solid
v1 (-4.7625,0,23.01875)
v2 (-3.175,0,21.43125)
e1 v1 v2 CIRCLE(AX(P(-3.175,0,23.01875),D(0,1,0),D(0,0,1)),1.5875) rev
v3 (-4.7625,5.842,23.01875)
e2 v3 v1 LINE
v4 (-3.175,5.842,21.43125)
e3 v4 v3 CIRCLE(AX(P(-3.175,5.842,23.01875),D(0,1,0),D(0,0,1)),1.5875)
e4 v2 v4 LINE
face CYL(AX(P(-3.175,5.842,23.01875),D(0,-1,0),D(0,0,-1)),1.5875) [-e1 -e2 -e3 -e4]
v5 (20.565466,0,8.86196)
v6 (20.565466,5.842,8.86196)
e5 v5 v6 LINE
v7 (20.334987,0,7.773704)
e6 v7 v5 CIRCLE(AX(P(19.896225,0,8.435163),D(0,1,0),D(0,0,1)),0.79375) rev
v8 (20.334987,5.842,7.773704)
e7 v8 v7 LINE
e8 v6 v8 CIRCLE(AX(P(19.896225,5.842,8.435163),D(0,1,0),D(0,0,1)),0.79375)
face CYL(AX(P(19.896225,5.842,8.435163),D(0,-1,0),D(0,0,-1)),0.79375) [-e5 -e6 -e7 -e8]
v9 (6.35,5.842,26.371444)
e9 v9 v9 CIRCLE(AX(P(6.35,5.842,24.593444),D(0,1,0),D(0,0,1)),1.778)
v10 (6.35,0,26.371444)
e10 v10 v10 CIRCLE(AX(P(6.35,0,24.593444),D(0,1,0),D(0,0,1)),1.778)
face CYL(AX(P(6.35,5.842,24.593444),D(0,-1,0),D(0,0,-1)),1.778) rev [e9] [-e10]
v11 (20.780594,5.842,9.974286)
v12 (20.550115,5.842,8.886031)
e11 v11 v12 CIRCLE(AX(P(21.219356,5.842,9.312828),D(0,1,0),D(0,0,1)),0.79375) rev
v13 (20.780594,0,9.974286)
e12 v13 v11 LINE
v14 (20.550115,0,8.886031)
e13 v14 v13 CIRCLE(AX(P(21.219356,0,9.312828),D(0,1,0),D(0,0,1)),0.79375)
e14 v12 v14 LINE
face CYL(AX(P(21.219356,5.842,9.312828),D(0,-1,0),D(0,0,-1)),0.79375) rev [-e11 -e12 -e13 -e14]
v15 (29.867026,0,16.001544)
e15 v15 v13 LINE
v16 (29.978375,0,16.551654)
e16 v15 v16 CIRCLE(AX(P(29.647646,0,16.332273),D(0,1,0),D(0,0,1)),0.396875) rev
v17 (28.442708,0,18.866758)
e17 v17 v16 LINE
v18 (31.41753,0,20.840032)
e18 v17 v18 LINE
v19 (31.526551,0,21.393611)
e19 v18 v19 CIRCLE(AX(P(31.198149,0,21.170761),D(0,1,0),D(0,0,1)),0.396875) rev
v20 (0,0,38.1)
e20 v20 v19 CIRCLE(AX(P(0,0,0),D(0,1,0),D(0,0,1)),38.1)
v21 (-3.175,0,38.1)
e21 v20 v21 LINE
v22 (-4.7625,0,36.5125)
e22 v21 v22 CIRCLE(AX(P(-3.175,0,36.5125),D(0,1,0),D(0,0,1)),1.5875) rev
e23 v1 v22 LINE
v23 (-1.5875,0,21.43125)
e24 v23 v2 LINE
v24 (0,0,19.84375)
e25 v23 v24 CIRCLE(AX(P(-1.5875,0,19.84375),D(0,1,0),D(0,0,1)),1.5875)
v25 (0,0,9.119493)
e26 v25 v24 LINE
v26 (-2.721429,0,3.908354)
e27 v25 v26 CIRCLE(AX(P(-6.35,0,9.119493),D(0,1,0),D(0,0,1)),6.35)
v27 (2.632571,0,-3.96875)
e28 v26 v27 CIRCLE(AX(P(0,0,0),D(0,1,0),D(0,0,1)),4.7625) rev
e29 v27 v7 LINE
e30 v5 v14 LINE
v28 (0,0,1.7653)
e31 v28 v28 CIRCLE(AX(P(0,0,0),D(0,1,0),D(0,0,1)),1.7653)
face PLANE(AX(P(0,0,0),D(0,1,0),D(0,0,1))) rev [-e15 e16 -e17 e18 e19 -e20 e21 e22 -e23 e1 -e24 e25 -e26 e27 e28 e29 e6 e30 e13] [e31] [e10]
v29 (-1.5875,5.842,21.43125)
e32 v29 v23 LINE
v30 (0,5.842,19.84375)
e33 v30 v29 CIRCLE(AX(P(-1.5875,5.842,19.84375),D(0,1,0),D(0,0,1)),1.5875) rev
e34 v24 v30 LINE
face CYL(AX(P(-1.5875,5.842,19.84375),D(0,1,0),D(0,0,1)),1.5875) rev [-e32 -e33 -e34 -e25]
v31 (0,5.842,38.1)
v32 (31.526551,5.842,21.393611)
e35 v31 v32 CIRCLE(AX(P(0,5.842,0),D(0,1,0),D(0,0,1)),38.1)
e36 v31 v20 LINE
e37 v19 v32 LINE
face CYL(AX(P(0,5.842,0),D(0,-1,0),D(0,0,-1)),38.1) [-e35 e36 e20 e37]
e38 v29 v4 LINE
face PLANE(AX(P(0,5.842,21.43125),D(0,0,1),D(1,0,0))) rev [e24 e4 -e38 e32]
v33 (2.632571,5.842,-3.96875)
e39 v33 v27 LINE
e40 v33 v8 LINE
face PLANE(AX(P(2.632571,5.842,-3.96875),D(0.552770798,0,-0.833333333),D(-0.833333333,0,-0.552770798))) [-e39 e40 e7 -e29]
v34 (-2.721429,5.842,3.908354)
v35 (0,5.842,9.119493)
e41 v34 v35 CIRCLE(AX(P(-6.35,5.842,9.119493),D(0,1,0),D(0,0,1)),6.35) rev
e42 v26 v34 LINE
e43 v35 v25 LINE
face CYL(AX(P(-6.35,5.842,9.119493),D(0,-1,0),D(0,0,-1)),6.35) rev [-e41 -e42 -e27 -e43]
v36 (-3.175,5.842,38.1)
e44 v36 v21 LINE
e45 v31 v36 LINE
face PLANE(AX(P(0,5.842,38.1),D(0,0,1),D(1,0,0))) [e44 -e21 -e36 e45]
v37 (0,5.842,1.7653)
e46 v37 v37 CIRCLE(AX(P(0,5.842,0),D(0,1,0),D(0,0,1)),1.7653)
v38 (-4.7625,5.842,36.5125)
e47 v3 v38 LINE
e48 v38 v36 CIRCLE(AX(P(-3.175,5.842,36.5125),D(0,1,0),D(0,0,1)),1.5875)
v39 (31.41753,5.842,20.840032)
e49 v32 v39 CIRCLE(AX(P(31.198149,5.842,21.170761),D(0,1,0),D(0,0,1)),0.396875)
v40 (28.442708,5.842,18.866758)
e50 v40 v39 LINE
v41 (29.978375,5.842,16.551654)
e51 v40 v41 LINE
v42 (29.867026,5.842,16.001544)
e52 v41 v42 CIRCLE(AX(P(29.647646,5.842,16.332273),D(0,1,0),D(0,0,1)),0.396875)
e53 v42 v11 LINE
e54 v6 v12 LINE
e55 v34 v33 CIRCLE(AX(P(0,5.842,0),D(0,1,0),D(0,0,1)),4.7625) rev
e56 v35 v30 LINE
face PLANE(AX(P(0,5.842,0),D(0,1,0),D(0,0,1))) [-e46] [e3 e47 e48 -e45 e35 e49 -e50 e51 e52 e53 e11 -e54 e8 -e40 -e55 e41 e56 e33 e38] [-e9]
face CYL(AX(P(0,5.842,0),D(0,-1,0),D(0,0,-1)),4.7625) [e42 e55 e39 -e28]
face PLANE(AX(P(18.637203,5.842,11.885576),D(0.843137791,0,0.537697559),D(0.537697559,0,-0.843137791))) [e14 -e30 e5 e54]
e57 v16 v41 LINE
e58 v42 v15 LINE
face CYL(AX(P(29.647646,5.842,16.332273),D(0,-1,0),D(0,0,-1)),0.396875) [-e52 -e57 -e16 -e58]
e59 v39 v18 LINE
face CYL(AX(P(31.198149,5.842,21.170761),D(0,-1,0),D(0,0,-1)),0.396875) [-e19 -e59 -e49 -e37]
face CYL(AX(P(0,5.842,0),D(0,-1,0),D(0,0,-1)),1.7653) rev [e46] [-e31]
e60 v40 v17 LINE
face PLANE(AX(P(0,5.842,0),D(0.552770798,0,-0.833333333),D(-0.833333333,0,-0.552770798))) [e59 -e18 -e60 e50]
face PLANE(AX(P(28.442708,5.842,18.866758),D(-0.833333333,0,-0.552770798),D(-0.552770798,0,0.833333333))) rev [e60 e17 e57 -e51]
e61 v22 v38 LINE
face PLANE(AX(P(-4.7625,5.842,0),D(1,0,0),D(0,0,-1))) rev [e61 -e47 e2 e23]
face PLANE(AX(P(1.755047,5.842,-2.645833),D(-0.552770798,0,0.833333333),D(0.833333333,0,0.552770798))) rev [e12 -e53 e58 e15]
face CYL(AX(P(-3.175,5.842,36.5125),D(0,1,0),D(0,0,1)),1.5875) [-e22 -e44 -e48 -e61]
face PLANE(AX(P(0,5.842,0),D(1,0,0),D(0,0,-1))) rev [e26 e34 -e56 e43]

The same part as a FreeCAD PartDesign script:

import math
import FreeCAD as App
import Part
import Sketcher
from FreeCAD import Vector
Q = App.Units.Quantity


def edges_at(feature, points):
    """Names of the edges that pass closest to the given points."""
    edges = feature.Shape.Edges
    near = lambda p: min(range(len(edges)), key=lambda i: edges[i].distToShape(Part.Vertex(*p))[0])
    return sorted({f"Edge{near(p) + 1}" for p in points})

doc = App.newDocument("Part")
params = doc.addObject("Spreadsheet::Sheet", "Params")
for row, (alias, value) in enumerate([
    ("sketch1_radius", "1.5 in"),
    ("sketch1_diameter", "0.14 in"),
    ("sketch1_diameter2", "0.139 in"),
    ("sketch1_radius2", "0.1875 in"),
    ("sketch1_width", "0.1875 in"),
    ("pad1_length", "0.23 in"),
    ("fillet_radius", "0.0625 in"),
    ("fillet2_radius", "0.25 in"),
    ("fillet3_radius", "0.015625 in"),
    ("fillet4_radius", "0.03125 in"),
], start=1):
    params.set(f"A{row}", alias)
    params.set(f"B{row}", "=" + value)
    params.setAlias(f"B{row}", alias)

body = doc.addObject("PartDesign::Body", "Body")

sketch1 = body.newObject("Sketcher::SketchObject", "Sketch")
sketch1.AttachmentSupport = (doc.getObject("XZ_Plane"), [""])
sketch1.MapMode = "FlatFace"
sketch1.addGeometry(Part.LineSegment(Vector(0, 4.8, 0), Vector(0, 21.4, 0)), False)
sketch1.addGeometry(Part.LineSegment(Vector(0, 21.4, 0), Vector(-4.8, 21.4, 0)), False)
sketch1.addGeometry(Part.LineSegment(Vector(-4.8, 21.4, 0), Vector(-4.8, 38.1, 0)), False)
sketch1.addGeometry(Part.LineSegment(Vector(-4.8, 38.1, 0), Vector(0, 38.1, 0)), False)
sketch1.addGeometry(Part.ArcOfCircle(Part.Circle(Vector(0, 0, 0), Vector(0, 0, 1), 38.1), math.radians(34), math.radians(90)), False)
sketch1.addGeometry(Part.LineSegment(Vector(31.8, 21.1, 0), Vector(28.4, 18.9, 0)), False)
sketch1.addGeometry(Part.LineSegment(Vector(28.4, 18.9, 0), Vector(30.2, 16.2, 0)), False)
sketch1.addGeometry(Part.LineSegment(Vector(30.2, 16.2, 0), Vector(20.1, 9.5, 0)), False)
sketch1.addGeometry(Part.LineSegment(Vector(20.1, 9.5, 0), Vector(21, 8.2, 0)), False)
sketch1.addGeometry(Part.LineSegment(Vector(21, 8.2, 0), Vector(2.6, -4, 0)), False)
sketch1.addGeometry(Part.ArcOfCircle(Part.Circle(Vector(0, 0, 0), Vector(0, 0, 1), 4.8), math.radians(90), math.radians(304)), False)
sketch1.addGeometry(Part.Circle(Vector(6.3, 24.6, 0), Vector(0, 0, 1), 1.8), False)
sketch1.addGeometry(Part.Circle(Vector(0, 0, 0), Vector(0, 0, 1), 1.8), False)
sketch1.addConstraint(Sketcher.Constraint("Coincident", 0, 2, 1, 1))
sketch1.addConstraint(Sketcher.Constraint("Coincident", 1, 2, 2, 1))
sketch1.addConstraint(Sketcher.Constraint("Coincident", 2, 2, 3, 1))
sketch1.addConstraint(Sketcher.Constraint("Tangent", 3, 2, 4, 2))
sketch1.addConstraint(Sketcher.Constraint("Coincident", 4, 1, 5, 1))
sketch1.addConstraint(Sketcher.Constraint("Coincident", 5, 2, 6, 1))
sketch1.addConstraint(Sketcher.Constraint("Coincident", 6, 2, 7, 1))
sketch1.addConstraint(Sketcher.Constraint("Coincident", 7, 2, 8, 1))
sketch1.addConstraint(Sketcher.Constraint("Coincident", 8, 2, 9, 1))
sketch1.addConstraint(Sketcher.Constraint("Tangent", 9, 2, 10, 2))
sketch1.addConstraint(Sketcher.Constraint("Coincident", 10, 1, 0, 1))
sketch1.addConstraint(Sketcher.Constraint("Vertical", 0))
sketch1.addConstraint(Sketcher.Constraint("Horizontal", 1))
sketch1.addConstraint(Sketcher.Constraint("Vertical", 2))
sketch1.addConstraint(Sketcher.Constraint("Horizontal", 3))
sketch1.addConstraint(Sketcher.Constraint("Coincident", 4, 3, -1, 1))
sketch1.addConstraint(Sketcher.Constraint("Coincident", 10, 3, -1, 1))
sketch1.addConstraint(Sketcher.Constraint("Coincident", 12, 3, -1, 1))
sketch1.addConstraint(Sketcher.Constraint("PointOnObject", 0, 2, -2))
sketch1.addConstraint(Sketcher.Constraint("Perpendicular", 5, 6))
sketch1.addConstraint(Sketcher.Constraint("Perpendicular", 6, 7))
sketch1.addConstraint(Sketcher.Constraint("Parallel", 7, 9))
sketch1.addConstraint(Sketcher.Constraint("Equal", 0, 2))
sketch1.addConstraint(Sketcher.Constraint("Radius", 4, Q("1.5 in")))
sketch1.addConstraint(Sketcher.Constraint("Diameter", 11, Q("0.14 in")))
sketch1.addConstraint(Sketcher.Constraint("Diameter", 12, Q("0.139 in")))
sketch1.addConstraint(Sketcher.Constraint("Radius", 10, Q("0.1875 in")))
sketch1.addConstraint(Sketcher.Constraint("DistanceX", 11, 3, 4, 1, Q("1 in")))
sketch1.addConstraint(Sketcher.Constraint("DistanceX", 1, 2, 1, 1, Q("0.1875 in")))
sketch1.addConstraint(Sketcher.Constraint("DistanceX", -1, 1, 11, 3, Q("0.25 in")))
sketch1.addConstraint(Sketcher.Constraint("Distance", 5, Q("0.15625 in")))
sketch1.addConstraint(Sketcher.Constraint("Distance", 6, Q("0.125 in")))
sketch1.addConstraint(Sketcher.Constraint("DistanceY", 9, 2, -1, 1, Q("0.15625 in")))
sketch1.addConstraint(Sketcher.Constraint("Distance", 7, Q("12.080198 mm")))
sketch1.addConstraint(Sketcher.Constraint("DistanceY", 7, 2, 11, 3, Q("15.0501 mm")))
sketch1.addConstraint(Sketcher.Constraint("DistanceX", 8, 2, 6, 2, Q("9.213099 mm")))
sketch1.setExpression("Constraints[23]", "Params.sketch1_radius")
sketch1.setExpression("Constraints[24]", "Params.sketch1_diameter")
sketch1.setExpression("Constraints[25]", "Params.sketch1_diameter2")
sketch1.setExpression("Constraints[26]", "Params.sketch1_radius2")
sketch1.setExpression("Constraints[28]", "Params.sketch1_width")
pad1 = body.newObject("PartDesign::Pad", "Pad")
pad1.Profile = sketch1
pad1.setExpression("Length", "Params.pad1_length")
pad1.Reversed = True
doc.recompute()

fillet = body.newObject("PartDesign::Fillet", "Fillet")
fillet.Base = (pad1, edges_at(pad1, [(-4.763, 2.921, 38.1), (-4.763, 2.921, 21.431), (0, 2.921, 21.431)]))
fillet.setExpression("Radius", "Params.fillet_radius")
doc.recompute()

fillet2 = body.newObject("PartDesign::Fillet", "Fillet001")
fillet2.Base = (fillet, edges_at(fillet, [(0, 2.921, 4.763)]))
fillet2.setExpression("Radius", "Params.fillet2_radius")
doc.recompute()

fillet3 = body.newObject("PartDesign::Fillet", "Fillet002")
fillet3.Base = (fillet2, edges_at(fillet2, [(30.198, 2.921, 16.221), (31.75, 2.921, 21.061)]))
fillet3.setExpression("Radius", "Params.fillet3_radius")
doc.recompute()

fillet4 = body.newObject("PartDesign::Fillet", "Fillet003")
fillet4.Base = (fillet3, edges_at(fillet3, [(20.985, 2.921, 8.205), (20.131, 2.921, 9.543)]))
fillet4.setExpression("Radius", "Params.fillet4_radius")

doc.recompute()
